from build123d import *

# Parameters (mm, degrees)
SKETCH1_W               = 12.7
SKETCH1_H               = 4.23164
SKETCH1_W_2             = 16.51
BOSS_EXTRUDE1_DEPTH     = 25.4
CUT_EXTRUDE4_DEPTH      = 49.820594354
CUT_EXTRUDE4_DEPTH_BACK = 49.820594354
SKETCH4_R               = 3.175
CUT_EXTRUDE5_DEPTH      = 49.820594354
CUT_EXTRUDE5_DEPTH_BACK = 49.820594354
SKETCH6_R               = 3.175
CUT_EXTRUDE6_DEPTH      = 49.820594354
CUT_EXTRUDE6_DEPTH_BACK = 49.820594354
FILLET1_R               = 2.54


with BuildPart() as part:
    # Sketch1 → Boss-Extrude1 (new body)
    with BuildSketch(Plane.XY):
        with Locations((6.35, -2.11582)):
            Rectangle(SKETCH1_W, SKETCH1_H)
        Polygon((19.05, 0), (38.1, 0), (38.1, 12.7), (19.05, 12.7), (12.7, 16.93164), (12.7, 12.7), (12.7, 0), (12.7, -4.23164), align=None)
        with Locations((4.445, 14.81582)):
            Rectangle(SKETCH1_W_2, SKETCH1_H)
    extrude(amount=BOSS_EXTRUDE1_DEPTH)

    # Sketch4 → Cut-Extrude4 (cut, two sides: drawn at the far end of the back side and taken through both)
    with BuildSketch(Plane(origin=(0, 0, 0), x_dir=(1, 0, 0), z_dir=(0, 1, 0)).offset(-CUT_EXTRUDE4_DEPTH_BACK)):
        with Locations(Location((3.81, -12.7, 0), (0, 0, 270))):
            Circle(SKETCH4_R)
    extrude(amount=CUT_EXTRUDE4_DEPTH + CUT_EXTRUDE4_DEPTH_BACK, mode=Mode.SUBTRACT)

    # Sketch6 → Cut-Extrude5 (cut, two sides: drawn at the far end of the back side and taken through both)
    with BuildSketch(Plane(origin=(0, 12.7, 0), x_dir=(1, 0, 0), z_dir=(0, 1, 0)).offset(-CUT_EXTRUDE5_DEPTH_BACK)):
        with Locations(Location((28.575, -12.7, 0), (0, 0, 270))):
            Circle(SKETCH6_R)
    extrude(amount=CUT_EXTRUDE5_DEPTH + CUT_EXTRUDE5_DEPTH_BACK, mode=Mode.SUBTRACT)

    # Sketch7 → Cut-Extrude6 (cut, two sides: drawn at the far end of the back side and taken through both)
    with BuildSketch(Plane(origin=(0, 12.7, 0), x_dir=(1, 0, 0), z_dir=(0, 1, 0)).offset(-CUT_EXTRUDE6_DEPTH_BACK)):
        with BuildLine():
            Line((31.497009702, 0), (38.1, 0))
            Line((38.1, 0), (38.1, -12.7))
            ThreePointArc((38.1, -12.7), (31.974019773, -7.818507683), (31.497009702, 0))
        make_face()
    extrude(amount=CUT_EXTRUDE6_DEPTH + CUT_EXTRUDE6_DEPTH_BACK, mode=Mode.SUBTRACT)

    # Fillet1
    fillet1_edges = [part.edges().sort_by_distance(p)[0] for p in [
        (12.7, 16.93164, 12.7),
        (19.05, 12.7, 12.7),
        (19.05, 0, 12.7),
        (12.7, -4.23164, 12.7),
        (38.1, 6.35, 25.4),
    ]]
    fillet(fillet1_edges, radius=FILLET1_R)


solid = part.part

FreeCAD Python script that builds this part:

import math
import FreeCAD as App
import Part
import Sketcher
from FreeCAD import Vector
Q = App.Units.Quantity


def edges_at(feature, points):
    """Names of the edges that pass closest to the given points."""
    edges = feature.Shape.Edges
    near = lambda p: min(range(len(edges)), key=lambda i: edges[i].distToShape(Part.Vertex(*p))[0])
    return sorted({f"Edge{near(p) + 1}" for p in points})

doc = App.newDocument("Part")
params = doc.addObject("Spreadsheet::Sheet", "Params")
for row, (alias, value) in enumerate([
    ("sketch1_width", "0.5 in"),
    ("sketch1_width2", "0.75 in"),
    ("sketch1_width3", "0.65 in"),
    ("pad1_length", "1 in"),
    ("sketch2_diameter", "0.25 in"),
    ("sketch3_diameter", "0.25 in"),
    ("sketch4_height", "0.5 in"),
    ("fillet_radius", "0.1 in"),
], start=1):
    params.set(f"A{row}", alias)
    params.set(f"B{row}", "=" + value)
    params.setAlias(f"B{row}", alias)

body = doc.addObject("PartDesign::Body", "Body")

# Sketch on XY plane
sketch1 = body.newObject("Sketcher::SketchObject", "Sketch")
sketch1.AttachmentSupport = (doc.getObject("XY_Plane"), [""])
sketch1.MapMode = "FlatFace"
sketch1.addGeometry([
    Part.LineSegment(Vector(0, 0, 0), Vector(0, -4.2, 0)),  # 0
    Part.LineSegment(Vector(0, -4.2, 0), Vector(12.7, -4.2, 0)),  # 1
    Part.LineSegment(Vector(12.7, -4.2, 0), Vector(19.1, 0, 0)),  # 2
    Part.LineSegment(Vector(19.1, 0, 0), Vector(38.1, 0, 0)),  # 3
    Part.LineSegment(Vector(38.1, 0, 0), Vector(38.1, 12.7, 0)),  # 4
    Part.LineSegment(Vector(38.1, 12.7, 0), Vector(19.1, 12.7, 0)),  # 5
    Part.LineSegment(Vector(19.1, 12.7, 0), Vector(12.7, 16.9, 0)),  # 6
    Part.LineSegment(Vector(12.7, 16.9, 0), Vector(-3.8, 16.9, 0)),  # 7
    Part.LineSegment(Vector(-3.8, 16.9, 0), Vector(-3.8, 12.7, 0)),  # 8
    Part.LineSegment(Vector(-3.8, 12.7, 0), Vector(12.7, 12.7, 0)),  # 9
    Part.LineSegment(Vector(12.7, 12.7, 0), Vector(12.7, 0, 0)),  # 10
    Part.LineSegment(Vector(12.7, 0, 0), Vector(0, 0, 0)),  # 11
], False)
sketch1.addConstraint([
    Sketcher.Constraint("Coincident", 0, 2, 1, 1),
    Sketcher.Constraint("Coincident", 1, 2, 2, 1),
    Sketcher.Constraint("Coincident", 2, 2, 3, 1),
    Sketcher.Constraint("Coincident", 3, 2, 4, 1),
    Sketcher.Constraint("Coincident", 4, 2, 5, 1),
    Sketcher.Constraint("Coincident", 5, 2, 6, 1),
    Sketcher.Constraint("Coincident", 6, 2, 7, 1),
    Sketcher.Constraint("Coincident", 7, 2, 8, 1),
    Sketcher.Constraint("Coincident", 8, 2, 9, 1),
    Sketcher.Constraint("Coincident", 9, 2, 10, 1),
    Sketcher.Constraint("Coincident", 10, 2, 11, 1),
    Sketcher.Constraint("Coincident", 11, 2, 0, 1),
    Sketcher.Constraint("Vertical", 0),
    Sketcher.Constraint("Horizontal", 1),
    Sketcher.Constraint("Horizontal", 3),
    Sketcher.Constraint("Vertical", 4),
    Sketcher.Constraint("Horizontal", 5),
    Sketcher.Constraint("Horizontal", 7),
    Sketcher.Constraint("Vertical", 8),
    Sketcher.Constraint("Horizontal", 9),
    Sketcher.Constraint("Vertical", 10),
    Sketcher.Constraint("Horizontal", 11),
    Sketcher.Constraint("Coincident", 11, 2, -1, 1),
    Sketcher.Constraint("PointOnObject", 2, 2, -1),
    Sketcher.Constraint("Horizontal", 5, 2, 8, 2),
    Sketcher.Constraint("Vertical", 2, 2, 5, 2),
    Sketcher.Constraint("Vertical", 1, 2, 6, 2),
    Sketcher.Constraint("Vertical", 6, 2, 9, 2),
    Sketcher.Constraint("Equal", 11, 4),
    Sketcher.Constraint("Equal", 0, 8),
    Sketcher.Constraint("DistanceX", 1, 1, 1, 2, Q("0.5 in")),
    Sketcher.Constraint("DistanceX", 1, 2, 3, 2, Q("1 in")),
    Sketcher.Constraint("DistanceX", 3, 1, 3, 2, Q("0.75 in")),
    Sketcher.Constraint("DistanceX", 7, 2, 7, 1, Q("0.65 in")),
    Sketcher.Constraint("DistanceY", 0, 2, 0, 1, Q("0.1666 in")),
])
sketch1.setExpression("Constraints[30]", "Params.sketch1_width")
sketch1.setExpression("Constraints[32]", "Params.sketch1_width2")
sketch1.setExpression("Constraints[33]", "Params.sketch1_width3")
pad1 = body.newObject("PartDesign::Pad", "Pad")
pad1.Profile = sketch1
pad1.setExpression("Length", "Params.pad1_length")

# Sketch on XZ plane
sketch2 = body.newObject("Sketcher::SketchObject", "Sketch001")
sketch2.AttachmentSupport = (doc.getObject("XZ_Plane"), [""])
sketch2.MapMode = "FlatFace"
sketch2.addGeometry(Part.Circle(Vector(3.8, 12.7, 0), Vector(0, 0, 1), 3.2), False)
sketch2.addConstraint([
    Sketcher.Constraint("Diameter", 0, Q("0.25 in")),
    Sketcher.Constraint("DistanceY", -1, 1, 0, 3, Q("0.5 in")),
    Sketcher.Constraint("DistanceX", -1, 1, 0, 3, Q("0.15 in")),
])
sketch2.setExpression("Constraints[0]", "Params.sketch2_diameter")
pocket1 = body.newObject("PartDesign::Pocket", "Pocket")
pocket1.Profile = sketch2
pocket1.Type = "ThroughAll"
pocket1.Midplane = True

# Sketch on XZ plane
sketch3 = body.newObject("Sketcher::SketchObject", "Sketch002")
sketch3.AttachmentSupport = (doc.getObject("XZ_Plane"), [""])
sketch3.MapMode = "FlatFace"
sketch3.AttachmentOffset = App.Placement(Vector(0, 0, -0.5 * 25.4), App.Rotation())
sketch3.addGeometry(Part.Circle(Vector(28.6, 12.7, 0), Vector(0, 0, 1), 3.2), False)
sketch3.addConstraint([
    Sketcher.Constraint("Diameter", 0, Q("0.25 in")),
    Sketcher.Constraint("DistanceY", -1, 1, 0, 3, Q("0.5 in")),
    Sketcher.Constraint("DistanceX", -1, 1, 0, 3, Q("1.125 in")),
])
sketch3.setExpression("Constraints[0]", "Params.sketch3_diameter")
pocket2 = body.newObject("PartDesign::Pocket", "Pocket001")
pocket2.Profile = sketch3
pocket2.Type = "ThroughAll"
pocket2.Midplane = True

# Sketch on XZ plane
sketch4 = body.newObject("Sketcher::SketchObject", "Sketch003")
sketch4.AttachmentSupport = (doc.getObject("XZ_Plane"), [""])
sketch4.MapMode = "FlatFace"
sketch4.AttachmentOffset = App.Placement(Vector(0, 0, -0.5 * 25.4), App.Rotation())
sketch4.addGeometry([
    Part.LineSegment(Vector(38, 0, 0), Vector(31, 0, 0)),
    Part.ArcOfCircle(Part.Circle(Vector(41, 3, 0), Vector(0, 0, 1), 10), math.radians(105), math.radians(200)),
    Part.LineSegment(Vector(38, 13, 0), Vector(38, 0, 0)),
], False)
sketch4.addConstraint([
    Sketcher.Constraint("Coincident", 0, 2, 1, 2),
    Sketcher.Constraint("Coincident", 1, 1, 2, 1),
    Sketcher.Constraint("Coincident", 2, 2, 0, 1),
    Sketcher.Constraint("Horizontal", 0),
    Sketcher.Constraint("Vertical", 2),
    Sketcher.Constraint("PointOnObject", 0, 2, -1),
    Sketcher.Constraint("DistanceY", 2, 2, 2, 1, Q("0.5 in")),
    Sketcher.Constraint("DistanceX", -1, 1, 1, 1, Q("1.5 in")),
    Sketcher.Constraint("Radius", 1, 9.636868),
    Sketcher.Constraint("DistanceX", 0, 2, 0, 1, 6.60299),
])
sketch4.setExpression("Constraints[6]", "Params.sketch4_height")
pocket3 = body.newObject("PartDesign::Pocket", "Pocket002")
pocket3.Profile = sketch4
pocket3.Type = "ThroughAll"
pocket3.Midplane = True
doc.recompute()

fillet = body.newObject("PartDesign::Fillet", "Fillet")
fillet.Base = (pocket3, edges_at(pocket3, [
    (12.7, 16.932, 12.7),
    (19.05, 12.7, 12.7),
    (19.05, 0, 12.7),
    (12.7, -4.232, 12.7),
    (38.1, 6.35, 25.4),
]))
fillet.setExpression("Radius", "Params.fillet_radius")

doc.recompute()
